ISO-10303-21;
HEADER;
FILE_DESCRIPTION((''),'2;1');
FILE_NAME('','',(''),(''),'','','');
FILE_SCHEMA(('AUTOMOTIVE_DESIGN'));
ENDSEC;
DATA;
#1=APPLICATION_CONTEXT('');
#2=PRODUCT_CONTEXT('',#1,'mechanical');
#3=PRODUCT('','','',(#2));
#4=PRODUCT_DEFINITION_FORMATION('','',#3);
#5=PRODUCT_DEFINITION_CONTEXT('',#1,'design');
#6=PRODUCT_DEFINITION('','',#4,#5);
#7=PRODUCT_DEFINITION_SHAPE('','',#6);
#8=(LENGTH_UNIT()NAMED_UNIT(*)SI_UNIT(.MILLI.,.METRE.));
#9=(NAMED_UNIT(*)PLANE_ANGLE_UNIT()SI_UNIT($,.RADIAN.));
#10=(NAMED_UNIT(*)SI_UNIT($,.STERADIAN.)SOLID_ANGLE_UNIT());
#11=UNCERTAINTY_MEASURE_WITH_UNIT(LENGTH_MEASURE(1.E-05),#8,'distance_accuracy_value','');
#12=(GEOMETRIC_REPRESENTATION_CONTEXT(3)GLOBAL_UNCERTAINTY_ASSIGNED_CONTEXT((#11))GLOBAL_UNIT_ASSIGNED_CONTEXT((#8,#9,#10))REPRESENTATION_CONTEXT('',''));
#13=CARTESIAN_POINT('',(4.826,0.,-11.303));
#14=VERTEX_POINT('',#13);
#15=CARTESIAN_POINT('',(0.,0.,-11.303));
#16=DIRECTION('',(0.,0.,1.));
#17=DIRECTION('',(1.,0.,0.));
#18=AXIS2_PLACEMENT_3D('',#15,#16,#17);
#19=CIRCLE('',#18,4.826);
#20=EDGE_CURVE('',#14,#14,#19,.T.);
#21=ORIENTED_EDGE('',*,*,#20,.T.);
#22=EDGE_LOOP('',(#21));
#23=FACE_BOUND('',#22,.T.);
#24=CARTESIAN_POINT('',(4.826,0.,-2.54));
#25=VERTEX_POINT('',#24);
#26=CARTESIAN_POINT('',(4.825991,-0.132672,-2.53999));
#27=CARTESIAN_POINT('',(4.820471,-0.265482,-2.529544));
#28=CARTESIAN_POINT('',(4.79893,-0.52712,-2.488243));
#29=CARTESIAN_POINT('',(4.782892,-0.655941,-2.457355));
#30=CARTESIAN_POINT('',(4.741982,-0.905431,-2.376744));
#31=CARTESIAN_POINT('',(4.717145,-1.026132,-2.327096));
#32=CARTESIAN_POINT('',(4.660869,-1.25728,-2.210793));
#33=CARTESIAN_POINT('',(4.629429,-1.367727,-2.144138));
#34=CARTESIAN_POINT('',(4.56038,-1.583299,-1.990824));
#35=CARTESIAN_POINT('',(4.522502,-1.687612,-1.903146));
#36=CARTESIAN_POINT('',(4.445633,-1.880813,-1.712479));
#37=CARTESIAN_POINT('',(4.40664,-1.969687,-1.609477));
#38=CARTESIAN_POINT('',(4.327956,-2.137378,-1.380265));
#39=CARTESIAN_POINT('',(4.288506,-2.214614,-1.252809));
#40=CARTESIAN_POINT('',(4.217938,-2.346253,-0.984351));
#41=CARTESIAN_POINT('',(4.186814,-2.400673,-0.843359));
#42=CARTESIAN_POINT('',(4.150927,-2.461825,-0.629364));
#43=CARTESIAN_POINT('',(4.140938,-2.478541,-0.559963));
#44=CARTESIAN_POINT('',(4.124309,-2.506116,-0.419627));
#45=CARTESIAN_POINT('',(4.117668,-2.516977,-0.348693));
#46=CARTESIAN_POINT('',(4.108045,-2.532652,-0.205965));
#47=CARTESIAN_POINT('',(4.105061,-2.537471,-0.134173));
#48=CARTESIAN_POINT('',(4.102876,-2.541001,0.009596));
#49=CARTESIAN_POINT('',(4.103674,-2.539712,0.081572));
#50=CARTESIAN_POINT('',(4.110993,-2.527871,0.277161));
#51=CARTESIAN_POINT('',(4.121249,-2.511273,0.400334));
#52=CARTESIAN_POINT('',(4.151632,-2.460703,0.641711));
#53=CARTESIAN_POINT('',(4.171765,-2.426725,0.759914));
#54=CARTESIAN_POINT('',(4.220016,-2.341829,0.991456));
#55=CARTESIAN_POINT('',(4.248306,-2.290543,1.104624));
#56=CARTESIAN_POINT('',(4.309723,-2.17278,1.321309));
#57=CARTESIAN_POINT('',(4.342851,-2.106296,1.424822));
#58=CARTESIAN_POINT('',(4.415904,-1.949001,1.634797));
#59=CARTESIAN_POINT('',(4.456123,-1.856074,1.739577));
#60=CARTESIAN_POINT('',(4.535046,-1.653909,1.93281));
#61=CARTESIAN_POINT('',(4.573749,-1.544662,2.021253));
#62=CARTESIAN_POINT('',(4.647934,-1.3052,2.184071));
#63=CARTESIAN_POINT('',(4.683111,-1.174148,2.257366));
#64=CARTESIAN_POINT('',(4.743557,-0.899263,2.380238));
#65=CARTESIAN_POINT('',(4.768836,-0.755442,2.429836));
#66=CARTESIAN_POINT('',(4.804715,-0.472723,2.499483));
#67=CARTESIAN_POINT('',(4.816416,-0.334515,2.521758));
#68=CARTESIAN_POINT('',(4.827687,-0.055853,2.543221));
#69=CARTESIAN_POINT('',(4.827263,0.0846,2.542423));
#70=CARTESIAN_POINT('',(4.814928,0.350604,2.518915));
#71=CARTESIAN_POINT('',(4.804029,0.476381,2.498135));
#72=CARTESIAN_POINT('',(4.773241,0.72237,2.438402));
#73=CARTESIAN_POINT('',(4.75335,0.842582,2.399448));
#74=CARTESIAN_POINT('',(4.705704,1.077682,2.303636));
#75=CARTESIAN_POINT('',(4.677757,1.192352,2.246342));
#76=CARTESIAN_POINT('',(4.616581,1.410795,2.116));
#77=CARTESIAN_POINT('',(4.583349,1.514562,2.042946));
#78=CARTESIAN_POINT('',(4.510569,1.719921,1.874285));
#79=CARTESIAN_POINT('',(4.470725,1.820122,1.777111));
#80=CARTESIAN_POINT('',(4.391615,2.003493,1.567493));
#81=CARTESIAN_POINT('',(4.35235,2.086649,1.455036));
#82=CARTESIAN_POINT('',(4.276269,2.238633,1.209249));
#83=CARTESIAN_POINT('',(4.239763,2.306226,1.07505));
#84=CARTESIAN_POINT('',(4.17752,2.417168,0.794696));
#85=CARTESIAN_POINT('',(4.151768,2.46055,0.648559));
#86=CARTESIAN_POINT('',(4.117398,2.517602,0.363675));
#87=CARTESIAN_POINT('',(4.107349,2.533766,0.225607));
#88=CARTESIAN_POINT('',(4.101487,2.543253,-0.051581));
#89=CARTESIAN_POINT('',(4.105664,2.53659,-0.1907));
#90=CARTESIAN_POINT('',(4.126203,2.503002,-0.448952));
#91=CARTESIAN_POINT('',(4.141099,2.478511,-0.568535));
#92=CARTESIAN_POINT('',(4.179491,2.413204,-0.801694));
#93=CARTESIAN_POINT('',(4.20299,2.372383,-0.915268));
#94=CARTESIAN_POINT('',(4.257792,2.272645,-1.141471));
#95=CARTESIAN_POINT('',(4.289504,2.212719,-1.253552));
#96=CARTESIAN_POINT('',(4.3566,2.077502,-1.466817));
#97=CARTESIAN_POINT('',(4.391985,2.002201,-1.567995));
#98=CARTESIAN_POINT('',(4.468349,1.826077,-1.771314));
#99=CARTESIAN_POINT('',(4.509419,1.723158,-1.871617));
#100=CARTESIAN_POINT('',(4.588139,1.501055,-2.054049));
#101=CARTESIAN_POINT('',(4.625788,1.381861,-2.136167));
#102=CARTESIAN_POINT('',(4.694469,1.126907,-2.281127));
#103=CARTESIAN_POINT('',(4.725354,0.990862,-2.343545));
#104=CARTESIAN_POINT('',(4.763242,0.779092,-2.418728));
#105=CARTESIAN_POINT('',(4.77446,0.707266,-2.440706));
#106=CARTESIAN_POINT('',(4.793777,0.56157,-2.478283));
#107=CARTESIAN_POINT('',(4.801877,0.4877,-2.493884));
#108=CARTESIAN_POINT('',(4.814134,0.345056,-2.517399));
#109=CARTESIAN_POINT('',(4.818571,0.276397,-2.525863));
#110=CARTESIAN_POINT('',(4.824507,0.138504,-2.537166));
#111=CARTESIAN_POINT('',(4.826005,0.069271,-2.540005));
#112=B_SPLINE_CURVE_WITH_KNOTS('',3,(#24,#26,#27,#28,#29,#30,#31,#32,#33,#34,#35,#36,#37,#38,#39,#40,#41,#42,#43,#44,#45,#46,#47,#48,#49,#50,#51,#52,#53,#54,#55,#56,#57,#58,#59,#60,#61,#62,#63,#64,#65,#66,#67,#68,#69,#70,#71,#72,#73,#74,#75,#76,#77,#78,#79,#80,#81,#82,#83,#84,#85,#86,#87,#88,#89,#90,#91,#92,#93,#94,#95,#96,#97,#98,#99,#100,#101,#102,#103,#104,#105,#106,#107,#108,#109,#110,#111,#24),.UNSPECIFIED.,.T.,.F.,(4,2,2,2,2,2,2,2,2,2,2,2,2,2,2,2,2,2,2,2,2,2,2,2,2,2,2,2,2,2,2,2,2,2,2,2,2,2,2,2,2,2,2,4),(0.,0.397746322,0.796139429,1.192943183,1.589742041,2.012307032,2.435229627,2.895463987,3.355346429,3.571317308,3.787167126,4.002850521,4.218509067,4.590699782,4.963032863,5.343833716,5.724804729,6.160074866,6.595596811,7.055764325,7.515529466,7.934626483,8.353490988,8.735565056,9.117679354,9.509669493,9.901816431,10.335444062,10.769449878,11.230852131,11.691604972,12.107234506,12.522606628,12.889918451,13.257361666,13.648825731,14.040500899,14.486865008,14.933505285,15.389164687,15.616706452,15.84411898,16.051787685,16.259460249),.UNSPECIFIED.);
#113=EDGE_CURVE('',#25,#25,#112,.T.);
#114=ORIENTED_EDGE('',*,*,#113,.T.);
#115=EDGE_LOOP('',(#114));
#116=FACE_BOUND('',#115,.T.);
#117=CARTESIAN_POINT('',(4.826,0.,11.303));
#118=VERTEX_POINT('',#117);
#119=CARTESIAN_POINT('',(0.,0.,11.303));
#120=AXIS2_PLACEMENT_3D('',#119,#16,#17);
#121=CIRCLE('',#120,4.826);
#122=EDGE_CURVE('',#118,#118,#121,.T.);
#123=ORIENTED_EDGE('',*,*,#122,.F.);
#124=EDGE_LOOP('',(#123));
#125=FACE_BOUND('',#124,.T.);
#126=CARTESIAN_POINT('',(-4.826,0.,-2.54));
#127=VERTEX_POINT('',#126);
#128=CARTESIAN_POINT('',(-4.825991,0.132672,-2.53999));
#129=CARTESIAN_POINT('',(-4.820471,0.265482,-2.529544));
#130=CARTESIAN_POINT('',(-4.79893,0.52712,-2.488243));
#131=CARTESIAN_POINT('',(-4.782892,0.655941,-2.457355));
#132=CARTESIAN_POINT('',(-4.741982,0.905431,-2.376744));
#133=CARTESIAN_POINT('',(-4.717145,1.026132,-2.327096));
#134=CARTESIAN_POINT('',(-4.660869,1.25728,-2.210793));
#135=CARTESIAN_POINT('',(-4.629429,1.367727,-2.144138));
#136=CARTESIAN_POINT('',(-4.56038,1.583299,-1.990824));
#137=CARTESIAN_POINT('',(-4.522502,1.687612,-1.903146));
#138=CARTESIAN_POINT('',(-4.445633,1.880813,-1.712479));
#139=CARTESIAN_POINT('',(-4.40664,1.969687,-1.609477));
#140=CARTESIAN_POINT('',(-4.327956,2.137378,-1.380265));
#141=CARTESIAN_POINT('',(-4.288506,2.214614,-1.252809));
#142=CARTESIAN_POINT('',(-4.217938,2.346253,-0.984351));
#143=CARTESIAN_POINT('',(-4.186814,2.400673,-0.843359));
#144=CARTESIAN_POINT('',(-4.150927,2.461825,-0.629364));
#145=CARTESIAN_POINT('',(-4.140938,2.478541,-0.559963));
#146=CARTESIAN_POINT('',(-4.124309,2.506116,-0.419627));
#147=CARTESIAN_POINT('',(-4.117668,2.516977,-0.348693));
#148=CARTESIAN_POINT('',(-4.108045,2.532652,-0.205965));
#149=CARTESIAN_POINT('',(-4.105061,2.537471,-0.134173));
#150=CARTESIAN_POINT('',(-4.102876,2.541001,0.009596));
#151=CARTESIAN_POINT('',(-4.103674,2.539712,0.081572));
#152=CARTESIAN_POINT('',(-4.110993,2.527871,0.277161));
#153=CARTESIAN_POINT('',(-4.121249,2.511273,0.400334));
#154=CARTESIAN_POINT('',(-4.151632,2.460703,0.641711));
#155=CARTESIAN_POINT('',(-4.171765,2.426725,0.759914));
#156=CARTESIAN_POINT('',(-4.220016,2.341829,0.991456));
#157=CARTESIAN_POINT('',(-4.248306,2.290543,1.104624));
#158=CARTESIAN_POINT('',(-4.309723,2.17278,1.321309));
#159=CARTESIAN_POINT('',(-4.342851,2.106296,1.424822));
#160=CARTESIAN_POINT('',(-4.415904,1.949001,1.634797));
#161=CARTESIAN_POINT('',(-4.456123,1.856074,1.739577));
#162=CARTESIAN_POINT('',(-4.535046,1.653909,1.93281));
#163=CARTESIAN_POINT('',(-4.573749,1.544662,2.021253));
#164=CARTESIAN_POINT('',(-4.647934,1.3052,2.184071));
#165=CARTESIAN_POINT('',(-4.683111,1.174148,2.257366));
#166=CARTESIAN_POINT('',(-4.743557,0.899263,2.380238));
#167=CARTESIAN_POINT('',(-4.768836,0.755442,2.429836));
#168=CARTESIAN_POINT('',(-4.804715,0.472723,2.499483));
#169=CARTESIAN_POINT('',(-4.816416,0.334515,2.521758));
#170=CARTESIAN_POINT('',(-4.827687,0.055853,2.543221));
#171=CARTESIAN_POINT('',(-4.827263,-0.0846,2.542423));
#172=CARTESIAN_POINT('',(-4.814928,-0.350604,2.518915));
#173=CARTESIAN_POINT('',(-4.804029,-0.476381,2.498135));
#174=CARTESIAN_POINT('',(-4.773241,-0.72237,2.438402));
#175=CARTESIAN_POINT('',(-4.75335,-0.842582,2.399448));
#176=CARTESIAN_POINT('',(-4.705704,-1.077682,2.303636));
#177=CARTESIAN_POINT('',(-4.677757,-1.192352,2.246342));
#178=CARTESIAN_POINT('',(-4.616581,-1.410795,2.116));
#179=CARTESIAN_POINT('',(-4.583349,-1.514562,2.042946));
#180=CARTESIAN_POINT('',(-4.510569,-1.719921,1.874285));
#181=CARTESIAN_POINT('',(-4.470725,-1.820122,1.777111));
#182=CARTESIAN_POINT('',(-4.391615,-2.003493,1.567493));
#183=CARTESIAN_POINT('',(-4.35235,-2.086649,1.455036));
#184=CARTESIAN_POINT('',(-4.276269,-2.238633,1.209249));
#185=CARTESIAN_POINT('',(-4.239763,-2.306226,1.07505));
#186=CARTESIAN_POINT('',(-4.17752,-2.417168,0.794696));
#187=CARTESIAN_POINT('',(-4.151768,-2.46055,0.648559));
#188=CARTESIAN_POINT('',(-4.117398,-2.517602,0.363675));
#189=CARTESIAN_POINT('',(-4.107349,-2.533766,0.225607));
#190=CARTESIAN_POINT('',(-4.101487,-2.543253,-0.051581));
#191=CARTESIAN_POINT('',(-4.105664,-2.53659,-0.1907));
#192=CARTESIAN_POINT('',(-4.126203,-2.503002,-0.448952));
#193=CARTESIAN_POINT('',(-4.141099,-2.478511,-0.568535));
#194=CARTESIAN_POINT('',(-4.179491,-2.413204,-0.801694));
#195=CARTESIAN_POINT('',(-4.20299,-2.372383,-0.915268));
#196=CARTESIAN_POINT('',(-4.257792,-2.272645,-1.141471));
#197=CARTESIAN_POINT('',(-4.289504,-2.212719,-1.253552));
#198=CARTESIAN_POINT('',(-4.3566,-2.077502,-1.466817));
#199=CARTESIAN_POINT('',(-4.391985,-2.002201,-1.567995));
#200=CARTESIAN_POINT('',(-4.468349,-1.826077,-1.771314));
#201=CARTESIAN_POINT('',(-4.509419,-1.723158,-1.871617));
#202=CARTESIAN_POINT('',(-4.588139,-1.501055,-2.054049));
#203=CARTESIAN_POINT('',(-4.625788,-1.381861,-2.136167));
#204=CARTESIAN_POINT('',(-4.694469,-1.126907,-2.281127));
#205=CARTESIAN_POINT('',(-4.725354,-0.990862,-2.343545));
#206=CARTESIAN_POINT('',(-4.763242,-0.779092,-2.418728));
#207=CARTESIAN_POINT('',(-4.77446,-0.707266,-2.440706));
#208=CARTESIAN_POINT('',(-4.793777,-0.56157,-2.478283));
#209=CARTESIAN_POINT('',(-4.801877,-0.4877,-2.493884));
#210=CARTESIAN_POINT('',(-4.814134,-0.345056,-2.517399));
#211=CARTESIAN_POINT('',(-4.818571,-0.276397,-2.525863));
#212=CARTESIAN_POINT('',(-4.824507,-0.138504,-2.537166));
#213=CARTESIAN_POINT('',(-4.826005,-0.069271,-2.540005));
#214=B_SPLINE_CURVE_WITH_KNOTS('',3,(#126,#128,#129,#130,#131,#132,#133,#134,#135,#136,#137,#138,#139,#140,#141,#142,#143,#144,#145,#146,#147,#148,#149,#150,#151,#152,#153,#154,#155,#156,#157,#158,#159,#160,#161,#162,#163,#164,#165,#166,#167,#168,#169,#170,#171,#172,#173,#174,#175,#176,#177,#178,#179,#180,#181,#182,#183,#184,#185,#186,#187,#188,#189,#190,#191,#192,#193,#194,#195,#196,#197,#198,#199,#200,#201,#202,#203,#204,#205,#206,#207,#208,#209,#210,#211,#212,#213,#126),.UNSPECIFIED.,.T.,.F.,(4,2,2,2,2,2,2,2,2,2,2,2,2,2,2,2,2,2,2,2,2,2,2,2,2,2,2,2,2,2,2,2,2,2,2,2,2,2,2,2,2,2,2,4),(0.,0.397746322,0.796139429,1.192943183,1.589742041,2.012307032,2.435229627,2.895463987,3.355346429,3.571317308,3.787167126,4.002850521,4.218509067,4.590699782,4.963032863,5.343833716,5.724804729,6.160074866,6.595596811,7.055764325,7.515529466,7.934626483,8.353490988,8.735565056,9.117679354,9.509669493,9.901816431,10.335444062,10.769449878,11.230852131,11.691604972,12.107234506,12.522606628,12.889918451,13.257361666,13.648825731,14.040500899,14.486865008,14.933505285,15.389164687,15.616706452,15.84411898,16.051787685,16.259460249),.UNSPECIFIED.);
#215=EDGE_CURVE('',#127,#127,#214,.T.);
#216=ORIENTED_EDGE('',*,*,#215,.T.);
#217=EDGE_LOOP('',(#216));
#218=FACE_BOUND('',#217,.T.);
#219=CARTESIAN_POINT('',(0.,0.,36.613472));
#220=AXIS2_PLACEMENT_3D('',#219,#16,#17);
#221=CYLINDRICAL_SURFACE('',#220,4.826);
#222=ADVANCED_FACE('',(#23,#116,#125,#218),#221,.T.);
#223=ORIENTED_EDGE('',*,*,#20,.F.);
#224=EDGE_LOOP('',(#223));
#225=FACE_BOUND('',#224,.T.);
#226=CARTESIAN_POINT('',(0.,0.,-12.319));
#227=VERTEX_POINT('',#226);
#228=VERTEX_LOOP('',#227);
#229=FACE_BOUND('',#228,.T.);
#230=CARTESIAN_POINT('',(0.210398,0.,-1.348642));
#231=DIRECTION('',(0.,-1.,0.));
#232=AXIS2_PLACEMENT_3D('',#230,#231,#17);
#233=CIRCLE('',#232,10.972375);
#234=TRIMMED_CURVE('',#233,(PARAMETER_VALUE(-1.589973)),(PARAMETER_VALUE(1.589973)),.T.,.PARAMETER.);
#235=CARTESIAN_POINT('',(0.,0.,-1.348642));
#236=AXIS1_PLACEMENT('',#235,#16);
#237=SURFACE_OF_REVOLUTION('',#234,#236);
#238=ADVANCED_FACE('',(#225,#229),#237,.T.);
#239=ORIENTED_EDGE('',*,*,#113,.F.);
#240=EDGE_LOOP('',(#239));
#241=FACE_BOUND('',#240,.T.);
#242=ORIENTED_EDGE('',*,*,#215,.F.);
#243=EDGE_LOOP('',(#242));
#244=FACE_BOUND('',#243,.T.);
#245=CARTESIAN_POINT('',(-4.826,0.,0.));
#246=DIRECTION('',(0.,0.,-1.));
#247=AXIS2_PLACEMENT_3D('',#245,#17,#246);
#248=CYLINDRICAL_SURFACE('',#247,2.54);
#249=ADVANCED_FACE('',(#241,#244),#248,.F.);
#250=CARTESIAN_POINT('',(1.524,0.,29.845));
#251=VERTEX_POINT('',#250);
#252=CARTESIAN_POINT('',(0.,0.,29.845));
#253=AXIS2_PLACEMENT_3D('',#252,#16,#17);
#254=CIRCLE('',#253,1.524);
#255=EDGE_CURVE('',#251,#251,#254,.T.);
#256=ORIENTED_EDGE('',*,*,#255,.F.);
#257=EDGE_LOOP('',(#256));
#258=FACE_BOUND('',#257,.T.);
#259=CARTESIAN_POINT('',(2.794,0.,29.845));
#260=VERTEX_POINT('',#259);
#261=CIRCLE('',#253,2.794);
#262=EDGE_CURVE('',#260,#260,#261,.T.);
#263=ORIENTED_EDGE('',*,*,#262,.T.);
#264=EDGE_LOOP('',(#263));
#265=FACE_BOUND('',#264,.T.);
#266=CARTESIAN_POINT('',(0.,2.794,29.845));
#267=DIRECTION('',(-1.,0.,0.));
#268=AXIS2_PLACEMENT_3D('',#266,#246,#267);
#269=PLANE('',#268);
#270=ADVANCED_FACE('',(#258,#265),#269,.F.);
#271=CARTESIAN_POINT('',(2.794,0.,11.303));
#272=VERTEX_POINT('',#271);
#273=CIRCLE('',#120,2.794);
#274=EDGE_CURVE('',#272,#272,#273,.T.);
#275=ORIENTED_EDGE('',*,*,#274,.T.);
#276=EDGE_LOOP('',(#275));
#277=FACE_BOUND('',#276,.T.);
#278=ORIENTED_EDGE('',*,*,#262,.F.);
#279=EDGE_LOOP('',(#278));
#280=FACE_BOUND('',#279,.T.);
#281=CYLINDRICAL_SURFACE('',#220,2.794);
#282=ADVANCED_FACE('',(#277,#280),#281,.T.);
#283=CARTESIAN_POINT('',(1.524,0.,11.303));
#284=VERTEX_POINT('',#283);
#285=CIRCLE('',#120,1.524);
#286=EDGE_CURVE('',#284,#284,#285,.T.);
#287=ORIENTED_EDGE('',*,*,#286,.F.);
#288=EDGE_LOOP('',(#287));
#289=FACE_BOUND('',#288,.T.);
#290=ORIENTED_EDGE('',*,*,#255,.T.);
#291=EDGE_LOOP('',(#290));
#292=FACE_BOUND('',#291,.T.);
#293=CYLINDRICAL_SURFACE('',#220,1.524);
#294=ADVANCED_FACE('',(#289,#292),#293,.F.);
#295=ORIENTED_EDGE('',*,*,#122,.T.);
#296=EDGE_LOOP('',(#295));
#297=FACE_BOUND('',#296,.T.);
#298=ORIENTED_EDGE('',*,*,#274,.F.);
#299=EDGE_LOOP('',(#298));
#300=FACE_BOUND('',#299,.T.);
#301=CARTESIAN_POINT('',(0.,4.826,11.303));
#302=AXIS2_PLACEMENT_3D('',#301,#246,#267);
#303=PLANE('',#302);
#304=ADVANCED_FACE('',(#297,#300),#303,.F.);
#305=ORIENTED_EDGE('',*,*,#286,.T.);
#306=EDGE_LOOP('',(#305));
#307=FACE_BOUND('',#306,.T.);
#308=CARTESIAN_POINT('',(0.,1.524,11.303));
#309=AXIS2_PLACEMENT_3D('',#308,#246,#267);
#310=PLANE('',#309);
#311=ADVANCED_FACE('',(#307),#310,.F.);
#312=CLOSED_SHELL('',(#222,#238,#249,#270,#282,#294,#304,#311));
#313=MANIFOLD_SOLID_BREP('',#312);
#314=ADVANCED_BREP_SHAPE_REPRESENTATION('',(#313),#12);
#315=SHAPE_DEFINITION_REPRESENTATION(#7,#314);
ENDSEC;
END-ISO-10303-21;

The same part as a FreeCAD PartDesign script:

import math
import FreeCAD as App
import Part
import Sketcher

V = App.Vector
Q = App.Units.Quantity

doc = App.newDocument("Part")
body = doc.addObject("PartDesign::Body", "Body")

sketch1 = body.newObject("Sketcher::SketchObject", "Sketch")
sketch1.AttachmentSupport = (doc.getObject("YZ_Plane"), [""])
sketch1.MapMode = "FlatFace"
sketch1.addGeometry([
    Part.LineSegment(V(0, -2.5, 0), V(0, -12.3, 0)),
    Part.ArcOfCircle(Part.Circle(V(0.2, -1.3, 0), V(0, 0, 1), 11), math.radians(-91), math.radians(-65)),
    Part.LineSegment(V(4.8, -11.3, 0), V(4.8, 11.3, 0)),
    Part.LineSegment(V(4.8, 11.3, 0), V(2.8, 11.3, 0)),
    Part.LineSegment(V(2.8, 11.3, 0), V(2.8, 29.8, 0)),
    Part.LineSegment(V(2.8, 29.8, 0), V(1.5, 29.8, 0)),
    Part.LineSegment(V(1.5, 29.8, 0), V(1.5, 11.3, 0)),
    Part.LineSegment(V(1.5, 11.3, 0), V(0, 11.3, 0)),
    Part.LineSegment(V(0, 11.3, 0), V(0, 2.5, 0)),
    Part.ArcOfCircle(Part.Circle(V(0, 0, 0), V(0, 0, 1), 2.5), math.radians(-90), math.radians(90)),
], False)
sketch1.addConstraint([
    Sketcher.Constraint("Coincident", 0, 2, 1, 1),
    Sketcher.Constraint("Coincident", 1, 2, 2, 1),
    Sketcher.Constraint("Coincident", 2, 2, 3, 1),
    Sketcher.Constraint("Coincident", 3, 2, 4, 1),
    Sketcher.Constraint("Coincident", 4, 2, 5, 1),
    Sketcher.Constraint("Coincident", 5, 2, 6, 1),
    Sketcher.Constraint("Coincident", 6, 2, 7, 1),
    Sketcher.Constraint("Coincident", 7, 2, 8, 1),
    Sketcher.Constraint("Coincident", 8, 2, 9, 2),
    Sketcher.Constraint("Coincident", 9, 1, 0, 1),
    Sketcher.Constraint("Vertical", 0),
    Sketcher.Constraint("Vertical", 2),
    Sketcher.Constraint("Horizontal", 3),
    Sketcher.Constraint("Vertical", 4),
    Sketcher.Constraint("Horizontal", 5),
    Sketcher.Constraint("Vertical", 6),
    Sketcher.Constraint("Horizontal", 7),
    Sketcher.Constraint("Vertical", 8),
    Sketcher.Constraint("Coincident", 9, 3, -1, 1),
    Sketcher.Constraint("PointOnObject", 0, 2, -2),
    Sketcher.Constraint("PointOnObject", 7, 2, -2),
    Sketcher.Constraint("Horizontal", 3, 2, 6, 2),
    Sketcher.Constraint("Radius", 9, Q("0.1 in")),
    Sketcher.Constraint("DistanceX", 3, 2, 3, 1, Q("0.08 in")),
    Sketcher.Constraint("DistanceX", 5, 2, 5, 1, Q("0.05 in")),
    Sketcher.Constraint("DistanceX", 7, 2, 7, 1, Q("0.06 in")),
    Sketcher.Constraint("DistanceY", 2, 1, 2, 2, Q("0.89 in")),
    Sketcher.Constraint("DistanceY", 4, 1, 4, 2, Q("0.73 in")),
    Sketcher.Constraint("DistanceY", 0, 2, 0, 1, Q("0.385 in")),
    Sketcher.Constraint("DistanceY", 8, 2, 8, 1, Q("0.345 in")),
    Sketcher.Constraint("Radius", 1, Q("10.972375 mm")),
])
revolution = body.newObject("PartDesign::Revolution", "Revolution")
revolution.Profile = sketch1
revolution.ReferenceAxis = (sketch1, ["V_Axis"])
revolution.Angle = 360

sketch2 = body.newObject("Sketcher::SketchObject", "Sketch001")
sketch2.AttachmentSupport = (doc.getObject("YZ_Plane"), [""])
sketch2.MapMode = "FlatFace"
sketch2.addGeometry(Part.Circle(V(0, 0, 0), V(0, 0, 1), 2.5), False)
sketch2.addConstraint([
    Sketcher.Constraint("Coincident", 0, 3, -1, 1),
    Sketcher.Constraint("Diameter", 0, Q("0.2 in")),
])
pocket1 = body.newObject("PartDesign::Pocket", "Pocket")
pocket1.Profile = sketch2
pocket1.Type = "ThroughAll"
pocket1.Midplane = True

doc.recompute()
